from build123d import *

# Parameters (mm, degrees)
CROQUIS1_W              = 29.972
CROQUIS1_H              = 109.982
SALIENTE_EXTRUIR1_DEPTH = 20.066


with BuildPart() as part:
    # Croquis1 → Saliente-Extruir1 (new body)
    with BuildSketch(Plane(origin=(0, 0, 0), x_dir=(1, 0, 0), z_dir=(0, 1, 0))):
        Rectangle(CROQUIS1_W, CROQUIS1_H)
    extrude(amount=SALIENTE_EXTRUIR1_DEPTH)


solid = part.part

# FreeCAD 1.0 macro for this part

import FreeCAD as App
import Part
import Sketcher
from FreeCAD import Vector
Q = App.Units.Quantity


def add_polygon(sketch, points):
    """Adds a closed chain of lines whose ends are joined by coincident constraints."""
    first, n = sketch.GeometryCount, len(points)
    for a, b in zip(points, points[1:] + points[:1]):
        sketch.addGeometry(Part.LineSegment(App.Vector(*a, 0), App.Vector(*b, 0)), False)
    for i in range(n):
        sketch.addConstraint(Sketcher.Constraint("Coincident", first + i, 2, first + (i + 1) % n, 1))

doc = App.newDocument("Part")
body = doc.addObject("PartDesign::Body", "Body")

# Sketch on XZ plane
sketch1 = body.newObject("Sketcher::SketchObject", "Sketch")
sketch1.AttachmentSupport = (doc.getObject("XZ_Plane"), [""])
sketch1.MapMode = "FlatFace"
add_polygon(sketch1, [(-15, -55), (-15, 55), (15, 55), (15, -55)])  # lines 0-3
sketch1.addConstraint(Sketcher.Constraint("Vertical", 0))
sketch1.addConstraint(Sketcher.Constraint("Horizontal", 1))
sketch1.addConstraint(Sketcher.Constraint("Vertical", 2))
sketch1.addConstraint(Sketcher.Constraint("Horizontal", 3))
sketch1.addConstraint(Sketcher.Constraint("Symmetric", 0, 2, 2, 2, -1, 1))
sketch1.addConstraint(Sketcher.Constraint("DistanceX", 1, 1, 1, 2, Q("1.18 in")))
sketch1.addConstraint(Sketcher.Constraint("DistanceY", 0, 1, 0, 2, Q("4.33 in")))
pad1 = body.newObject("PartDesign::Pad", "Pad")
pad1.Profile = sketch1
pad1.Length = Q("0.79 in")
pad1.Reversed = True

doc.recompute()
